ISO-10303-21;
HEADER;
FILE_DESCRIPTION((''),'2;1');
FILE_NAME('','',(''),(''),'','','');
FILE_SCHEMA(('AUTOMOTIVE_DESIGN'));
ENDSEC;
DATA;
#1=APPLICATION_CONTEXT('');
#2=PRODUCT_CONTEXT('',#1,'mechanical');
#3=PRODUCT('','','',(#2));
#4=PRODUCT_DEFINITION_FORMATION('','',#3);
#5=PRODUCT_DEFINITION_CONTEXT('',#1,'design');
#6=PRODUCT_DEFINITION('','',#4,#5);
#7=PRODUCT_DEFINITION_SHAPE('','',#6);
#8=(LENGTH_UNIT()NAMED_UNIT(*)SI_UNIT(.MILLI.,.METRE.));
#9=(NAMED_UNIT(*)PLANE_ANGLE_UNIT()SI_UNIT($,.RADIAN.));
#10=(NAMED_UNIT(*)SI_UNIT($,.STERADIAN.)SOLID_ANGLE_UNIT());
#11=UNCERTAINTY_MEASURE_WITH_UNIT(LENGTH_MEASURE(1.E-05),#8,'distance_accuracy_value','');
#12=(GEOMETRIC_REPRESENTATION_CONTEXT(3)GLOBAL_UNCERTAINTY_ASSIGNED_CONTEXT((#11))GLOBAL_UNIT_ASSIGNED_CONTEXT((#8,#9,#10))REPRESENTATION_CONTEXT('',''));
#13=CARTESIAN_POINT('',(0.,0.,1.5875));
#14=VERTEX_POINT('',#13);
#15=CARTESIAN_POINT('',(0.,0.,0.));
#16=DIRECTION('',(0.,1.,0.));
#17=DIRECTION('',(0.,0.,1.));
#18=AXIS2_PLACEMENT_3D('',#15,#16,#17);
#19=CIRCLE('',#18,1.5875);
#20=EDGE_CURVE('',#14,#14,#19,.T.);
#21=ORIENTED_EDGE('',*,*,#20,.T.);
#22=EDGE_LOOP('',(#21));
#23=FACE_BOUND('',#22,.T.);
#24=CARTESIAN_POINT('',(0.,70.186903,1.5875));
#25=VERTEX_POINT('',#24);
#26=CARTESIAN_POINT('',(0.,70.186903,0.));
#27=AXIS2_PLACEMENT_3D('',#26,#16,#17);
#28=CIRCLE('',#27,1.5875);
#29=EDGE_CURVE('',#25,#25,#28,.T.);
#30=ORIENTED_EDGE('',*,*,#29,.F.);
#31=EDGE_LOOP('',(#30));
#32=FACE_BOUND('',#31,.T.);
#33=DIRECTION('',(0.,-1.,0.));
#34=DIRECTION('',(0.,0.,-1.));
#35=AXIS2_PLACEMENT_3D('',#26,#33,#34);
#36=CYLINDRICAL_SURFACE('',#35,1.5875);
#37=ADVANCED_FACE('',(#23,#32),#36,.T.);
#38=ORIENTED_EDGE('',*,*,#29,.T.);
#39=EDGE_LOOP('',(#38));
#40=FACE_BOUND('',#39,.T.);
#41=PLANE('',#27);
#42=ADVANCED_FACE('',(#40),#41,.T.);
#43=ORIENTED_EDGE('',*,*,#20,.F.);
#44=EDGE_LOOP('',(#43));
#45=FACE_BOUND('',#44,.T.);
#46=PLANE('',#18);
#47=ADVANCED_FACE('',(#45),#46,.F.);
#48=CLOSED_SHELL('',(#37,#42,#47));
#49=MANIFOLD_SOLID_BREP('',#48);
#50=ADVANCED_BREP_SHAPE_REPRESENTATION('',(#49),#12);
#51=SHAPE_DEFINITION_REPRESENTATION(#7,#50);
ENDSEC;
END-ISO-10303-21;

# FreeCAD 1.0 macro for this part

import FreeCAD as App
import Part
import Sketcher
Q = App.Units.Quantity

doc = App.newDocument("Part")
params = doc.addObject("Spreadsheet::Sheet", "Params")
for row, (alias, value) in enumerate([
    ("sketch1_diameter", "0.125 in"),
    ("pad1_length", "70.186903 mm"),
], start=1):
    params.set(f"A{row}", alias)
    params.set(f"B{row}", "=" + value)
    params.setAlias(f"B{row}", alias)

body = doc.addObject("PartDesign::Body", "Body")

sketch1 = body.newObject("Sketcher::SketchObject", "Sketch")
sketch1.AttachmentSupport = (doc.getObject("XZ_Plane"), [""])
sketch1.MapMode = "FlatFace"
sketch1.addGeometry(Part.Circle(App.Vector(0, 0, 0), App.Vector(0, 0, 1), 1.6), False)
sketch1.addConstraint(Sketcher.Constraint("Coincident", 0, 3, -1, 1))
sketch1.addConstraint(Sketcher.Constraint("Diameter", 0, Q("0.125 in")))
sketch1.setExpression("Constraints[1]", "Params.sketch1_diameter")
pad1 = body.newObject("PartDesign::Pad", "Pad")
pad1.Profile = sketch1
pad1.setExpression("Length", "Params.pad1_length")
pad1.Reversed = True

doc.recompute()
